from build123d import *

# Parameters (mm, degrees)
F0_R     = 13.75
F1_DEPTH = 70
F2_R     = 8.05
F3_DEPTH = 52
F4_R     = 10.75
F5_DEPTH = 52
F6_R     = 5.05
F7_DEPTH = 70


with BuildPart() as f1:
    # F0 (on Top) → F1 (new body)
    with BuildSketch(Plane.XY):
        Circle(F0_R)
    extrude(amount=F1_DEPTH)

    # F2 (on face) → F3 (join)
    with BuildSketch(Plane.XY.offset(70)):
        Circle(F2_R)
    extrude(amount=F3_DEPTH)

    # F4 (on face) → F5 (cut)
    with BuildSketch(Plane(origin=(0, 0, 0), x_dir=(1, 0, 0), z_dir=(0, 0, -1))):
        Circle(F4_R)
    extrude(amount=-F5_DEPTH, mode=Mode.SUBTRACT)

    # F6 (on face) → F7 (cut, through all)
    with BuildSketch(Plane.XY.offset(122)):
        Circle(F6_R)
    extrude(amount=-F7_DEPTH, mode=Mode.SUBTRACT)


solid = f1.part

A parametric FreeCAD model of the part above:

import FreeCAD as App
import Part
import Sketcher
from FreeCAD import Vector

doc = App.newDocument("Part")
body = doc.addObject("PartDesign::Body", "Body")

# Sketch on XY plane
sketch1 = doc.addObject("Sketcher::SketchObject", "Sketch")
body.addObject(sketch1)
sketch1.AttachmentSupport = (doc.XY_Plane, [""])
sketch1.MapMode = "FlatFace"
sketch1.addGeometry(Part.Circle(Vector(0, 0, 0), Vector(0, 0, 1), 13.75), False)
sketch1.addConstraint([
    Sketcher.Constraint("Coincident", 0, 3, -1, 1),
    Sketcher.Constraint("Diameter", 0, 27.5),
])
pad1 = doc.addObject("PartDesign::Pad", "Pad")
body.addObject(pad1)
pad1.Profile = sketch1
pad1.Length = 70

# Sketch on XY plane
sketch2 = doc.addObject("Sketcher::SketchObject", "Sketch001")
body.addObject(sketch2)
sketch2.AttachmentSupport = (doc.XY_Plane, [""])
sketch2.MapMode = "FlatFace"
sketch2.AttachmentOffset = App.Placement(Vector(0, 0, 70), App.Rotation())
sketch2.addGeometry(Part.Circle(Vector(0, 0, 0), Vector(0, 0, 1), 8.05), False)
sketch2.addConstraint([
    Sketcher.Constraint("Coincident", 0, 3, -1, 1),
    Sketcher.Constraint("Diameter", 0, 16.1),
])
pad2 = doc.addObject("PartDesign::Pad", "Pad001")
body.addObject(pad2)
pad2.Profile = sketch2
pad2.Length = 52

# Sketch on XY plane
sketch3 = doc.addObject("Sketcher::SketchObject", "Sketch002")
body.addObject(sketch3)
sketch3.AttachmentSupport = (doc.XY_Plane, [""])
sketch3.MapMode = "FlatFace"
sketch3.addGeometry(Part.Circle(Vector(0, 0, 0), Vector(0, 0, 1), 10.75), False)
sketch3.addConstraint([
    Sketcher.Constraint("Coincident", 0, 3, -1, 1),
    Sketcher.Constraint("Diameter", 0, 21.5),
])
pocket1 = doc.addObject("PartDesign::Pocket", "Pocket")
body.addObject(pocket1)
pocket1.Profile = sketch3
pocket1.Length = 52
pocket1.Reversed = True

# Sketch on XY plane
sketch4 = doc.addObject("Sketcher::SketchObject", "Sketch003")
body.addObject(sketch4)
sketch4.AttachmentSupport = (doc.XY_Plane, [""])
sketch4.MapMode = "FlatFace"
sketch4.AttachmentOffset = App.Placement(Vector(0, 0, 122), App.Rotation())
sketch4.addGeometry(Part.Circle(Vector(0, 0, 0), Vector(0, 0, 1), 5.05), False)
sketch4.addConstraint([
    Sketcher.Constraint("Coincident", 0, 3, -1, 1),
    Sketcher.Constraint("Diameter", 0, 10.1),
])
pocket2 = doc.addObject("PartDesign::Pocket", "Pocket001")
body.addObject(pocket2)
pocket2.Profile = sketch4
pocket2.Type = "ThroughAll"

doc.recompute()
